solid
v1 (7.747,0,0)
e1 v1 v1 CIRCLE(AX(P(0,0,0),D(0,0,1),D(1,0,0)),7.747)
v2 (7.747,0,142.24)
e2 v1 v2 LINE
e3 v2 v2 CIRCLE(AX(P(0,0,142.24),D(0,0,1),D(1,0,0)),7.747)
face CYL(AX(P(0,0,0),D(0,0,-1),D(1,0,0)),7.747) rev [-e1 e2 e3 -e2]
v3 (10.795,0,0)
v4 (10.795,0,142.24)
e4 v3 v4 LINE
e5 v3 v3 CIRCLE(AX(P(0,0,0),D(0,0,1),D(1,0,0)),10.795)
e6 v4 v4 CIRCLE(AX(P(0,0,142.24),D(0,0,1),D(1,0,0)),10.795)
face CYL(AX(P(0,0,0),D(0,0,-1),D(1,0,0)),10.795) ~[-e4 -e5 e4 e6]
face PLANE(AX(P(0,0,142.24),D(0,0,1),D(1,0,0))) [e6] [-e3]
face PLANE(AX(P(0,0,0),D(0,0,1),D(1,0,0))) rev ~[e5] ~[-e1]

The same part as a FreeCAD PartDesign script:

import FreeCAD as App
import Part
import Sketcher
Q = App.Units.Quantity

doc = App.newDocument("Part")
params = doc.addObject("Spreadsheet::Sheet", "Params")
for row, (alias, value) in enumerate([
    ("sketch1_diameter", "0.85 in"),
    ("sketch1_diameter2", "0.61 in"),
    ("pad1_length", "5.6 in"),
], start=1):
    params.set(f"A{row}", alias)
    params.set(f"B{row}", "=" + value)
    params.setAlias(f"B{row}", alias)

body = doc.addObject("PartDesign::Body", "Body")

sketch1 = body.newObject("Sketcher::SketchObject", "Sketch")
sketch1.AttachmentSupport = (doc.getObject("XY_Plane"), [""])
sketch1.MapMode = "FlatFace"
sketch1.addGeometry([
    Part.Circle(App.Vector(0, 0, 0), App.Vector(0, 0, 1), 11),
    Part.Circle(App.Vector(0, 0, 0), App.Vector(0, 0, 1), 8),
], False)
sketch1.addConstraint([
    Sketcher.Constraint("Coincident", 0, 3, -1, 1),
    Sketcher.Constraint("Coincident", 1, 3, -1, 1),
    Sketcher.Constraint("Diameter", 0, Q("0.85 in")),
    Sketcher.Constraint("Diameter", 1, Q("0.61 in")),
])
sketch1.setExpression("Constraints[2]", "Params.sketch1_diameter")
sketch1.setExpression("Constraints[3]", "Params.sketch1_diameter2")
pad1 = body.newObject("PartDesign::Pad", "Pad")
pad1.Profile = sketch1
pad1.setExpression("Length", "Params.pad1_length")

doc.recompute()
